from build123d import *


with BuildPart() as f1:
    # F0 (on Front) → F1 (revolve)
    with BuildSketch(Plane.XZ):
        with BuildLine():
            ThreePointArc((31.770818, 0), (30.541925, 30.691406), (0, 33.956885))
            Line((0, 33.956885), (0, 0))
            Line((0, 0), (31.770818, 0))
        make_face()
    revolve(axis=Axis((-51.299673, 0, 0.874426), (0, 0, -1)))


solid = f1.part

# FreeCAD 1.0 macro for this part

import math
import FreeCAD as App
import Part
import Sketcher
from FreeCAD import Vector

doc = App.newDocument("Part")
body = doc.addObject("PartDesign::Body", "Body")

sketch1 = body.newObject("Sketcher::SketchObject", "Sketch")
sketch1.AttachmentSupport = (doc.getObject("XZ_Plane"), [""])
sketch1.MapMode = "FlatFace"
sketch1.addGeometry([
    Part.ArcOfCircle(Part.Circle(Vector(13, 15, 0), Vector(0, 0, 1), 24), math.radians(-39), math.radians(125)),
    Part.LineSegment(Vector(0, 34, 0), Vector(0, 0, 0)),
    Part.LineSegment(Vector(0, 0, 0), Vector(32, 0, 0)),
], False)
sketch1.addGeometry(Part.LineSegment(Vector(-51, 34, 0), Vector(-51, 0, 0)), True)
sketch1.addConstraint([
    Sketcher.Constraint("Coincident", 0, 2, 1, 1),
    Sketcher.Constraint("Coincident", 1, 2, 2, 1),
    Sketcher.Constraint("Coincident", 2, 2, 0, 1),
    Sketcher.Constraint("Vertical", 1),
    Sketcher.Constraint("Horizontal", 2),
    Sketcher.Constraint("Vertical", 3),
    Sketcher.Constraint("Coincident", 1, 2, -1, 1),
    Sketcher.Constraint("PointOnObject", 3, 2, -1),
    Sketcher.Constraint("Horizontal", 0, 2, 3, 1),
    Sketcher.Constraint("Radius", 0, 23.502975),
    Sketcher.Constraint("DistanceX", 2, 1, 2, 2, 31.770818),
    Sketcher.Constraint("DistanceY", 1, 2, 1, 1, 33.956885),
    Sketcher.Constraint("DistanceX", 3, 1, 2, 2, 83.070491),
])
revolution = body.newObject("PartDesign::Revolution", "Revolution")
revolution.Profile = sketch1
revolution.ReferenceAxis = (sketch1, ["Axis0"])
revolution.Angle = 360

doc.recompute()
